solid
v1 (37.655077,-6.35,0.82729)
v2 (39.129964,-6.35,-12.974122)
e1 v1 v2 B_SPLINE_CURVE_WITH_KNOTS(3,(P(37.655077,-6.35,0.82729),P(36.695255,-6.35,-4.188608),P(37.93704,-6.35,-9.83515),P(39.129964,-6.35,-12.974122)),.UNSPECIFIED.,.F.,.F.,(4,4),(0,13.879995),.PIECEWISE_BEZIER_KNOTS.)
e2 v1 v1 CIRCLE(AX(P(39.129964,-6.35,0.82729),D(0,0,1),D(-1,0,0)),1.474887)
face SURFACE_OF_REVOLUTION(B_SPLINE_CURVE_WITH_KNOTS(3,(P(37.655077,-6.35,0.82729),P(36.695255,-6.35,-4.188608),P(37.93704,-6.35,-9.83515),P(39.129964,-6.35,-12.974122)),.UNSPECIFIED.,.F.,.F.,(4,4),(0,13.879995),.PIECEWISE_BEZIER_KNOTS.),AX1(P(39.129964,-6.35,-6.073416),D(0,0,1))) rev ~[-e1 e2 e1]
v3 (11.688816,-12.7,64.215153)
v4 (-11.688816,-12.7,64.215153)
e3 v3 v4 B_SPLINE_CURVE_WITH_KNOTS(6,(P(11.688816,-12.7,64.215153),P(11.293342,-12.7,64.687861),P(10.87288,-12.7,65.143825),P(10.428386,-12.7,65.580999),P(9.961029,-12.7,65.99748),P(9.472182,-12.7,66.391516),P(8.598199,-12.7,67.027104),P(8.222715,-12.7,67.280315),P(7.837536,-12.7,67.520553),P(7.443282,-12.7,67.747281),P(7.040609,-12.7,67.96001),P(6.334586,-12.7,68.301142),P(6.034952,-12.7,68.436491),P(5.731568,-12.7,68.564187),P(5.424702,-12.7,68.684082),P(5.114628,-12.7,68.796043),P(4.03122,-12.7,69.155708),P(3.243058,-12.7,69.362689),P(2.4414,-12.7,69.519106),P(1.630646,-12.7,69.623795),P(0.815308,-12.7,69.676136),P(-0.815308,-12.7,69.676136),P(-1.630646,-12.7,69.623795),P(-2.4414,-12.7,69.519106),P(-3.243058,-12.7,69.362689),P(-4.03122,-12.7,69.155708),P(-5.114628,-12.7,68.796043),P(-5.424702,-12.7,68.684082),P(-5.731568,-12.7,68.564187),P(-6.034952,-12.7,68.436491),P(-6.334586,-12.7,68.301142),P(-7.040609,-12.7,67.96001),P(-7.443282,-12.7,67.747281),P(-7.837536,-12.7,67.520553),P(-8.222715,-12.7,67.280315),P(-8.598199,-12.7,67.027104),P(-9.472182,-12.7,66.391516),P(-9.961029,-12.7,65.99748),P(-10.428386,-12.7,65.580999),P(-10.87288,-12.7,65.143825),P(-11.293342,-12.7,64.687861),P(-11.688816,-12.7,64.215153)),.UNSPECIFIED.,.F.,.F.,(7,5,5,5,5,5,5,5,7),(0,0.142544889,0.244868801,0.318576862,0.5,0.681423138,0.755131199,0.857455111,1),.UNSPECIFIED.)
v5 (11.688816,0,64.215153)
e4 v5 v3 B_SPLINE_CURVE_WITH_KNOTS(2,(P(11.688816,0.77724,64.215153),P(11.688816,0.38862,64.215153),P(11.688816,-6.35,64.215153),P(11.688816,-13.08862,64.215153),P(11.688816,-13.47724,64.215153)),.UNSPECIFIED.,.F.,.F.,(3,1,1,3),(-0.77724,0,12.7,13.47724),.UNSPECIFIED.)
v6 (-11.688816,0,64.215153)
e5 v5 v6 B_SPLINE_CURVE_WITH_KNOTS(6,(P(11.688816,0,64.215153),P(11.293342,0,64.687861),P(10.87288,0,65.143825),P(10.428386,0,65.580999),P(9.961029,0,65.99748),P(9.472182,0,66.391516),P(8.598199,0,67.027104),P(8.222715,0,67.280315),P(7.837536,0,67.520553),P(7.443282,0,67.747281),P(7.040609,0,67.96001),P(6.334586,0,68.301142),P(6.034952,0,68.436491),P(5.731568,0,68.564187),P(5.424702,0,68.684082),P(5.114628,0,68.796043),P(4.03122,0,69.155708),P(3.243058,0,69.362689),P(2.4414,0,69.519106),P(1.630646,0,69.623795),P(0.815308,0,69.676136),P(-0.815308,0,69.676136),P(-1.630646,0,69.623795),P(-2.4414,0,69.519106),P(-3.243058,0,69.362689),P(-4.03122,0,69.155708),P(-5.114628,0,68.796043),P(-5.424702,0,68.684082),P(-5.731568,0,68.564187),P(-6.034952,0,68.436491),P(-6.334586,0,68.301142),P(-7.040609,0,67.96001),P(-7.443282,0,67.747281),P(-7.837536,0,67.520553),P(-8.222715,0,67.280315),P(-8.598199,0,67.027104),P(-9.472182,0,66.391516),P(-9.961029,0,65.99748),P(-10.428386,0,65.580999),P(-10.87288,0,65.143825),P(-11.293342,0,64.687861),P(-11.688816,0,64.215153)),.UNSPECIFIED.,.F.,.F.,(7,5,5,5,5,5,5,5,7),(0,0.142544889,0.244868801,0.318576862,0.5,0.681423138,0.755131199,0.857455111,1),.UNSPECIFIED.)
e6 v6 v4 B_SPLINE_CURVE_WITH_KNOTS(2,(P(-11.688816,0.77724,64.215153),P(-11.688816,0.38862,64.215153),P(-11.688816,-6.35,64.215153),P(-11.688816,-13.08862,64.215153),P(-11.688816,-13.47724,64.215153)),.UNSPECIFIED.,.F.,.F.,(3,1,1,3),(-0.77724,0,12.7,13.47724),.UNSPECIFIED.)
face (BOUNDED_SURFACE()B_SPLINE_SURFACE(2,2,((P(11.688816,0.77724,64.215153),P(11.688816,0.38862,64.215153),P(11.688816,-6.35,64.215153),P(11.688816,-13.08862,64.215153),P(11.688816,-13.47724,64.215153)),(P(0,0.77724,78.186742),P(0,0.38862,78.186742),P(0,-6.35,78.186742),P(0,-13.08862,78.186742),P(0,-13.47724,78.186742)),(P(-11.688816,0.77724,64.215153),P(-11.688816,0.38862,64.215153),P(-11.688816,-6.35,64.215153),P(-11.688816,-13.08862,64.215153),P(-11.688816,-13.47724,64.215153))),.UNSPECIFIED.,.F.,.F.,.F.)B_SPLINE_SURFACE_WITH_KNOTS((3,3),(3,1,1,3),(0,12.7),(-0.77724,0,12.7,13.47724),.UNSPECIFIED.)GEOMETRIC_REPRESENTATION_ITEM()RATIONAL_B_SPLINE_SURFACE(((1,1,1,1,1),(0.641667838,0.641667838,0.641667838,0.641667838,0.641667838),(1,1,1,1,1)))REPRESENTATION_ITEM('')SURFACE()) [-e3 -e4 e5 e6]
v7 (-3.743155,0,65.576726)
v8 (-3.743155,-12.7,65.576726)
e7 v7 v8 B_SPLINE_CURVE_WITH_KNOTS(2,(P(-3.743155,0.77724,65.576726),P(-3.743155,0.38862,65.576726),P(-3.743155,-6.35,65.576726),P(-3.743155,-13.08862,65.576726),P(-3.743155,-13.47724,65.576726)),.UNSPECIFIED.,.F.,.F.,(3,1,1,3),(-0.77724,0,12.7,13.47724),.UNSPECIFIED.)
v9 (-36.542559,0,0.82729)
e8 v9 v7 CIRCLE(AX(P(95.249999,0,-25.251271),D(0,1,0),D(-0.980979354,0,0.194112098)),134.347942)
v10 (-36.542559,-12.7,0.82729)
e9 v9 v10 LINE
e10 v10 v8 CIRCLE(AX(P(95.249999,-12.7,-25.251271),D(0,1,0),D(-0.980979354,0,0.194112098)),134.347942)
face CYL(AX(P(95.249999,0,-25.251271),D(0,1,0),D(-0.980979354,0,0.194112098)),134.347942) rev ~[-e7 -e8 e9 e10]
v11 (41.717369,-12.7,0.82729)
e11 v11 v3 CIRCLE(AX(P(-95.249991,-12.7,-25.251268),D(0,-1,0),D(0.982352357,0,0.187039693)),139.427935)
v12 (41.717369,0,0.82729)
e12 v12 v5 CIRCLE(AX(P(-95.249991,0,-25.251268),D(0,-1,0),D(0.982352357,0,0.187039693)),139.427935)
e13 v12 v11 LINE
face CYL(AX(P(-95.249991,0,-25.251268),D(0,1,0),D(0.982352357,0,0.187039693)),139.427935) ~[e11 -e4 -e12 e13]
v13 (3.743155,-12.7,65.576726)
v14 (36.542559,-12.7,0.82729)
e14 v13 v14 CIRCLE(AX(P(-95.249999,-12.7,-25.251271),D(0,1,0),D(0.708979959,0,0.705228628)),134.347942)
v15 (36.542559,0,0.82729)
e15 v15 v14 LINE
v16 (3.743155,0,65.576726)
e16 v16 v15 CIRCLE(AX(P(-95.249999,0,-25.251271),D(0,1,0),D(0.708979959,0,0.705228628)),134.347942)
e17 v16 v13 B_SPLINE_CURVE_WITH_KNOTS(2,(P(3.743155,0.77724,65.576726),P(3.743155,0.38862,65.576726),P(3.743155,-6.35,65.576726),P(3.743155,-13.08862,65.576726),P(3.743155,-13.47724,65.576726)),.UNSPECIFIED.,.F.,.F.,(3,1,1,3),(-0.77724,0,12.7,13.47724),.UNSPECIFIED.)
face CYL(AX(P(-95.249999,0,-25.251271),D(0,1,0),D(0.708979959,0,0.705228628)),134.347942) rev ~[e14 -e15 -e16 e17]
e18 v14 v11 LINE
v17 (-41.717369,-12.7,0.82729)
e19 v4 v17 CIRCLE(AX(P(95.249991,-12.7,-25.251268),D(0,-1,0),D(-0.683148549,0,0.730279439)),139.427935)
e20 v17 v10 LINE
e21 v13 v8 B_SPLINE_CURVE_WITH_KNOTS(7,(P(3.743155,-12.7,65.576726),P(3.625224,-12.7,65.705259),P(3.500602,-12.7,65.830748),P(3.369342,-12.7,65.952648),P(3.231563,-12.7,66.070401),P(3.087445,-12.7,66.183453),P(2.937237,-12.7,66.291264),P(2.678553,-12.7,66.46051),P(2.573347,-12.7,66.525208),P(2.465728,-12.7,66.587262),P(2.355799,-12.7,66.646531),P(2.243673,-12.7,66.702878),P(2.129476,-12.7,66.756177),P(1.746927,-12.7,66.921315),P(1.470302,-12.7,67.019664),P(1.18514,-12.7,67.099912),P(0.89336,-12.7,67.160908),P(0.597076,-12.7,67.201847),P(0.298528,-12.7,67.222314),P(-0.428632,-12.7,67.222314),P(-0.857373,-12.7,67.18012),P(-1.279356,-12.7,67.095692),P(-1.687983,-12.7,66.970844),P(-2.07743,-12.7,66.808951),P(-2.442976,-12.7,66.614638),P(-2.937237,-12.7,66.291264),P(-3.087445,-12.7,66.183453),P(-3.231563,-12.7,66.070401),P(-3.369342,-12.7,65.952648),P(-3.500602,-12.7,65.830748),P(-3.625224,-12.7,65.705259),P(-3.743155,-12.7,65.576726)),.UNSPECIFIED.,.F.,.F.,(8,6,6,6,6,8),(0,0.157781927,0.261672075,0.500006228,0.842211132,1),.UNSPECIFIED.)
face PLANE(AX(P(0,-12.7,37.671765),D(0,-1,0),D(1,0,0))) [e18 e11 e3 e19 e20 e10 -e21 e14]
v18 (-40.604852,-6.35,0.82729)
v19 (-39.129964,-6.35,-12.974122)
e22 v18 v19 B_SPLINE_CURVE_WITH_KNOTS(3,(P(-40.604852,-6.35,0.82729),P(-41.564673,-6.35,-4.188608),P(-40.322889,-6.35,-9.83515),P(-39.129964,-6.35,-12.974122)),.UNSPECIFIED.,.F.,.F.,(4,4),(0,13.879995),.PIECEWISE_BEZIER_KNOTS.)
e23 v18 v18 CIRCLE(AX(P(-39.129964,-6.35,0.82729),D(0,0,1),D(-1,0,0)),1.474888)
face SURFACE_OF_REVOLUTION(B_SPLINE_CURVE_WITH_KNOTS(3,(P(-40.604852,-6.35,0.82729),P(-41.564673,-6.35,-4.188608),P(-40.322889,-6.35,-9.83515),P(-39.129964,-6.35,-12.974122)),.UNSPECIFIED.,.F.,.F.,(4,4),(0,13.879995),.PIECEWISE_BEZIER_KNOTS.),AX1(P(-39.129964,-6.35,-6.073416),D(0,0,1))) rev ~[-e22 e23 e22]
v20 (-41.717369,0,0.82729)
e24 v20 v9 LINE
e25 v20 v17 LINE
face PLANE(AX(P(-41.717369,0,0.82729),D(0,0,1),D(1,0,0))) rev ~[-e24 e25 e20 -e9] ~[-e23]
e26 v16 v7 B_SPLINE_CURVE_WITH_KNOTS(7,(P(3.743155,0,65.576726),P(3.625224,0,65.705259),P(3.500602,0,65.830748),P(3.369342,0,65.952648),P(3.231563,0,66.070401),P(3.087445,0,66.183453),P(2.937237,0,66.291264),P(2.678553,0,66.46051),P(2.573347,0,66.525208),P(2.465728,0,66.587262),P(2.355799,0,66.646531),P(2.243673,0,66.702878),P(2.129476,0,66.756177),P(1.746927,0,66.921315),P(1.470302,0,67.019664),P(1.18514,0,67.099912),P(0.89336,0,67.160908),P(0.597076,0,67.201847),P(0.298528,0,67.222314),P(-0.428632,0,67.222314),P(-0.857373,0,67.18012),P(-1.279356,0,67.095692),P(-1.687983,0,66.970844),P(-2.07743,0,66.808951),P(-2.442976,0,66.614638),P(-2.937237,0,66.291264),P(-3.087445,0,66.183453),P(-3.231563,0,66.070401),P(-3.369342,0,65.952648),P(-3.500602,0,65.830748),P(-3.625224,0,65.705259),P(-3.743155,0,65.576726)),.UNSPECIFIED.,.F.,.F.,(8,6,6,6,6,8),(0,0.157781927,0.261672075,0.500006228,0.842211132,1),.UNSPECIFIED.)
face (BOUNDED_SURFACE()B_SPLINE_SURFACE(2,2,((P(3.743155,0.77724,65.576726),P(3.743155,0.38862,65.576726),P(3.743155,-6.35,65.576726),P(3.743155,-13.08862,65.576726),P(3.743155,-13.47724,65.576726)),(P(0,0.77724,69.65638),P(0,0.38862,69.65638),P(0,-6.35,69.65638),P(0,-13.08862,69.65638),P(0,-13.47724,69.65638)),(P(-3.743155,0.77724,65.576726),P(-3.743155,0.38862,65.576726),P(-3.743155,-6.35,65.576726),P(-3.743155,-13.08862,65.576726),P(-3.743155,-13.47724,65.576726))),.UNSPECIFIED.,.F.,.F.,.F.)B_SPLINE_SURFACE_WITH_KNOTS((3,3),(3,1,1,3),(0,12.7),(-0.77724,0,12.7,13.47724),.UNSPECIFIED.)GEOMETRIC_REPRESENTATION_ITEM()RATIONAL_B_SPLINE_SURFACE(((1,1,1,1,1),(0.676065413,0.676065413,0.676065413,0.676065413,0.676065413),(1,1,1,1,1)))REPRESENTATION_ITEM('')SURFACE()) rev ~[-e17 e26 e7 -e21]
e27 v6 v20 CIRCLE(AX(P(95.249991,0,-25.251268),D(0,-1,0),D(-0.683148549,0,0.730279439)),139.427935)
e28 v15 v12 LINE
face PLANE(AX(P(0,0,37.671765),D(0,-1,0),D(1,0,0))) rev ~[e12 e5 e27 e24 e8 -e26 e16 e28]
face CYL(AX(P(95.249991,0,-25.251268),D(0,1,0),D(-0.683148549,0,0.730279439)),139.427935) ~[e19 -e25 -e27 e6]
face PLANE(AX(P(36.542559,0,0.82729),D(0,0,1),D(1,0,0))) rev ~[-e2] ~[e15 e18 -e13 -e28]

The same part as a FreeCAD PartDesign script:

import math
import FreeCAD as App
import Part
import Sketcher

V = App.Vector
Q = App.Units.Quantity


def edges_at(feature, points):
    """Names of the edges that pass closest to the given points."""
    edges = feature.Shape.Edges
    near = lambda p: min(range(len(edges)), key=lambda i: edges[i].distToShape(Part.Vertex(*p))[0])
    return sorted({f"Edge{near(p) + 1}" for p in points})

doc = App.newDocument("Part")
params = doc.addObject("Spreadsheet::Sheet", "Params")
for row, (alias, value) in enumerate([
    ("pad1_length", "0.5 in"),
    ("fillet_radius", "0.6 in"),
    ("fillet2_radius", "0.2 in"),
    ("revolution_angle", "360 deg"),
    ("revolution2_angle", "360 deg"),
], start=1):
    params.set(f"A{row}", alias)
    params.set(f"B{row}", "=" + value)
    params.setAlias(f"B{row}", alias)

body = doc.addObject("PartDesign::Body", "Body")

sketch1 = body.newObject("Sketcher::SketchObject", "Sketch")
sketch1.AttachmentSupport = (doc.getObject("XZ_Plane"), [""])
sketch1.MapMode = "FlatFace"
sketch1.addGeometry(Part.ArcOfCircle(Part.Circle(V(-95, -25, 0), V(0, 0, 1), 139), math.radians(11), math.radians(47)), False)
sketch1.addGeometry(Part.ArcOfCircle(Part.Circle(V(95, -25, 0), V(0, 0, 1), 139), math.radians(133), math.radians(169)), False)
sketch1.addGeometry(Part.LineSegment(V(-42, 1, 0), V(-37, 1, 0)), False)
sketch1.addGeometry(Part.ArcOfCircle(Part.Circle(V(95, -25, 0), V(0, 0, 1), 134), math.radians(135), math.radians(169)), False)
sketch1.addGeometry(Part.ArcOfCircle(Part.Circle(V(-95, -25, 0), V(0, 0, 1), 134), math.radians(11), math.radians(45)), False)
sketch1.addGeometry(Part.LineSegment(V(37, 1, 0), V(42, 1, 0)), False)
sketch1.addConstraint(Sketcher.Constraint("Coincident", 0, 2, 1, 1))
sketch1.addConstraint(Sketcher.Constraint("Coincident", 1, 2, 2, 1))
sketch1.addConstraint(Sketcher.Constraint("Coincident", 2, 2, 3, 2))
sketch1.addConstraint(Sketcher.Constraint("Coincident", 3, 1, 4, 2))
sketch1.addConstraint(Sketcher.Constraint("Coincident", 4, 1, 5, 1))
sketch1.addConstraint(Sketcher.Constraint("Coincident", 5, 2, 0, 1))
sketch1.addConstraint(Sketcher.Constraint("Horizontal", 2))
sketch1.addConstraint(Sketcher.Constraint("Horizontal", 5))
sketch1.addConstraint(Sketcher.Constraint("Coincident", 3, 3, 1, 3))
sketch1.addConstraint(Sketcher.Constraint("Coincident", 4, 3, 0, 3))
sketch1.addConstraint(Sketcher.Constraint("Equal", 0, 1))
sketch1.addConstraint(Sketcher.Constraint("Equal", 3, 4))
sketch1.addConstraint(Sketcher.Constraint("Symmetric", 0, 3, 1, 3, -2))
sketch1.addConstraint(Sketcher.Constraint("Horizontal", 2, 2, 4, 1))
sketch1.addConstraint(Sketcher.Constraint("DistanceX", 4, 3, 3, 3, Q("7.4999999 in")))
sketch1.addConstraint(Sketcher.Constraint("DistanceY", 1, 2, 0, 2, Q("2.9819998 in")))
sketch1.addConstraint(Sketcher.Constraint("Radius", 0, 139.427935))
sketch1.addConstraint(Sketcher.Constraint("Radius", 3, 134.347942))
sketch1.addConstraint(Sketcher.Constraint("DistanceY", 0, 3, -1, 1, 25.251268))
pad1 = body.newObject("PartDesign::Pad", "Pad")
pad1.Profile = sketch1
pad1.setExpression("Length", "Params.pad1_length")
doc.recompute()

fillet = body.newObject("PartDesign::Fillet", "Fillet")
fillet.Base = (pad1, edges_at(pad1, [(0, -6.35, 76.57)]))
fillet.setExpression("Radius", "Params.fillet_radius")
doc.recompute()

fillet2 = body.newObject("PartDesign::Fillet", "Fillet001")
fillet2.Base = (fillet, edges_at(fillet, [(0, -6.35, 69.495)]))
fillet2.setExpression("Radius", "Params.fillet2_radius")

sketch2 = body.newObject("Sketcher::SketchObject", "Sketch001")
sketch2.AttachmentSupport = (doc.getObject("XZ_Plane"), [""])
sketch2.MapMode = "FlatFace"
sketch2.AttachmentOffset = App.Placement(V(0, 0, 0.25 * 25.4), App.Rotation())
sketch2.addGeometry(Part.LineSegment(V(39.129964, 0.82729, 0), V(37.655077, 0.82729, 0)), False)
sketch2.addGeometry(Part.BSplineCurve([V(37.655077, 0.82729, 0), V(36.695255, -4.188608, 0), V(37.93704, -9.83515, 0), V(39.129964, -12.974122, 0)], [4, 4], [0, 13.879995], False, 3, [1, 1, 1, 1], False), False)
sketch2.addGeometry(Part.LineSegment(V(39.129964, -12.974122, 0), V(39.129964, 0.82729, 0)), False)
sketch2.addGeometry(Part.LineSegment(V(39.129964, -12.974122, 0), V(39.129964, 0.82729, 0)), True)
sketch2.addConstraint(Sketcher.Constraint("Block", 1))
sketch2.addConstraint(Sketcher.Constraint("Coincident", 0, 2, 1, 1))
sketch2.addConstraint(Sketcher.Constraint("Coincident", 1, 2, 2, 1))
sketch2.addConstraint(Sketcher.Constraint("Coincident", 2, 2, 0, 1))
sketch2.addConstraint(Sketcher.Constraint("Horizontal", 0))
sketch2.addConstraint(Sketcher.Constraint("Vertical", 2))
sketch2.addConstraint(Sketcher.Constraint("Vertical", 3))
sketch2.addConstraint(Sketcher.Constraint("Coincident", 3, 2, 2, 2))
sketch2.addConstraint(Sketcher.Constraint("Equal", 2, 3))
revolution = body.newObject("PartDesign::Revolution", "Revolution")
revolution.Profile = sketch2
revolution.ReferenceAxis = (sketch2, ["Axis0"])
revolution.setExpression("Angle", "Params.revolution_angle")

sketch3 = body.newObject("Sketcher::SketchObject", "Sketch002")
sketch3.AttachmentSupport = (doc.getObject("XZ_Plane"), [""])
sketch3.MapMode = "FlatFace"
sketch3.AttachmentOffset = App.Placement(V(0, 0, 0.25 * 25.4), App.Rotation())
sketch3.addGeometry(Part.LineSegment(V(-39.129964, 0.82729, 0), V(-40.604852, 0.82729, 0)), False)
sketch3.addGeometry(Part.BSplineCurve([V(-40.604852, 0.82729, 0), V(-41.564673, -4.188608, 0), V(-40.322889, -9.83515, 0), V(-39.129964, -12.974122, 0)], [4, 4], [0, 13.879995], False, 3, [1, 1, 1, 1], False), False)
sketch3.addGeometry(Part.LineSegment(V(-39.129964, -12.974122, 0), V(-39.129964, 0.82729, 0)), False)
sketch3.addGeometry(Part.LineSegment(V(-39.129964, -12.974122, 0), V(-39.129964, 0.82729, 0)), True)
sketch3.addConstraint(Sketcher.Constraint("Block", 1))
sketch3.addConstraint(Sketcher.Constraint("Coincident", 0, 2, 1, 1))
sketch3.addConstraint(Sketcher.Constraint("Coincident", 1, 2, 2, 1))
sketch3.addConstraint(Sketcher.Constraint("Coincident", 2, 2, 0, 1))
sketch3.addConstraint(Sketcher.Constraint("Horizontal", 0))
sketch3.addConstraint(Sketcher.Constraint("Vertical", 2))
sketch3.addConstraint(Sketcher.Constraint("Vertical", 3))
sketch3.addConstraint(Sketcher.Constraint("Coincident", 3, 2, 2, 2))
sketch3.addConstraint(Sketcher.Constraint("Equal", 2, 3))
revolution2 = body.newObject("PartDesign::Revolution", "Revolution001")
revolution2.Profile = sketch3
revolution2.ReferenceAxis = (sketch3, ["Axis0"])
revolution2.setExpression("Angle", "Params.revolution2_angle")

doc.recompute()
